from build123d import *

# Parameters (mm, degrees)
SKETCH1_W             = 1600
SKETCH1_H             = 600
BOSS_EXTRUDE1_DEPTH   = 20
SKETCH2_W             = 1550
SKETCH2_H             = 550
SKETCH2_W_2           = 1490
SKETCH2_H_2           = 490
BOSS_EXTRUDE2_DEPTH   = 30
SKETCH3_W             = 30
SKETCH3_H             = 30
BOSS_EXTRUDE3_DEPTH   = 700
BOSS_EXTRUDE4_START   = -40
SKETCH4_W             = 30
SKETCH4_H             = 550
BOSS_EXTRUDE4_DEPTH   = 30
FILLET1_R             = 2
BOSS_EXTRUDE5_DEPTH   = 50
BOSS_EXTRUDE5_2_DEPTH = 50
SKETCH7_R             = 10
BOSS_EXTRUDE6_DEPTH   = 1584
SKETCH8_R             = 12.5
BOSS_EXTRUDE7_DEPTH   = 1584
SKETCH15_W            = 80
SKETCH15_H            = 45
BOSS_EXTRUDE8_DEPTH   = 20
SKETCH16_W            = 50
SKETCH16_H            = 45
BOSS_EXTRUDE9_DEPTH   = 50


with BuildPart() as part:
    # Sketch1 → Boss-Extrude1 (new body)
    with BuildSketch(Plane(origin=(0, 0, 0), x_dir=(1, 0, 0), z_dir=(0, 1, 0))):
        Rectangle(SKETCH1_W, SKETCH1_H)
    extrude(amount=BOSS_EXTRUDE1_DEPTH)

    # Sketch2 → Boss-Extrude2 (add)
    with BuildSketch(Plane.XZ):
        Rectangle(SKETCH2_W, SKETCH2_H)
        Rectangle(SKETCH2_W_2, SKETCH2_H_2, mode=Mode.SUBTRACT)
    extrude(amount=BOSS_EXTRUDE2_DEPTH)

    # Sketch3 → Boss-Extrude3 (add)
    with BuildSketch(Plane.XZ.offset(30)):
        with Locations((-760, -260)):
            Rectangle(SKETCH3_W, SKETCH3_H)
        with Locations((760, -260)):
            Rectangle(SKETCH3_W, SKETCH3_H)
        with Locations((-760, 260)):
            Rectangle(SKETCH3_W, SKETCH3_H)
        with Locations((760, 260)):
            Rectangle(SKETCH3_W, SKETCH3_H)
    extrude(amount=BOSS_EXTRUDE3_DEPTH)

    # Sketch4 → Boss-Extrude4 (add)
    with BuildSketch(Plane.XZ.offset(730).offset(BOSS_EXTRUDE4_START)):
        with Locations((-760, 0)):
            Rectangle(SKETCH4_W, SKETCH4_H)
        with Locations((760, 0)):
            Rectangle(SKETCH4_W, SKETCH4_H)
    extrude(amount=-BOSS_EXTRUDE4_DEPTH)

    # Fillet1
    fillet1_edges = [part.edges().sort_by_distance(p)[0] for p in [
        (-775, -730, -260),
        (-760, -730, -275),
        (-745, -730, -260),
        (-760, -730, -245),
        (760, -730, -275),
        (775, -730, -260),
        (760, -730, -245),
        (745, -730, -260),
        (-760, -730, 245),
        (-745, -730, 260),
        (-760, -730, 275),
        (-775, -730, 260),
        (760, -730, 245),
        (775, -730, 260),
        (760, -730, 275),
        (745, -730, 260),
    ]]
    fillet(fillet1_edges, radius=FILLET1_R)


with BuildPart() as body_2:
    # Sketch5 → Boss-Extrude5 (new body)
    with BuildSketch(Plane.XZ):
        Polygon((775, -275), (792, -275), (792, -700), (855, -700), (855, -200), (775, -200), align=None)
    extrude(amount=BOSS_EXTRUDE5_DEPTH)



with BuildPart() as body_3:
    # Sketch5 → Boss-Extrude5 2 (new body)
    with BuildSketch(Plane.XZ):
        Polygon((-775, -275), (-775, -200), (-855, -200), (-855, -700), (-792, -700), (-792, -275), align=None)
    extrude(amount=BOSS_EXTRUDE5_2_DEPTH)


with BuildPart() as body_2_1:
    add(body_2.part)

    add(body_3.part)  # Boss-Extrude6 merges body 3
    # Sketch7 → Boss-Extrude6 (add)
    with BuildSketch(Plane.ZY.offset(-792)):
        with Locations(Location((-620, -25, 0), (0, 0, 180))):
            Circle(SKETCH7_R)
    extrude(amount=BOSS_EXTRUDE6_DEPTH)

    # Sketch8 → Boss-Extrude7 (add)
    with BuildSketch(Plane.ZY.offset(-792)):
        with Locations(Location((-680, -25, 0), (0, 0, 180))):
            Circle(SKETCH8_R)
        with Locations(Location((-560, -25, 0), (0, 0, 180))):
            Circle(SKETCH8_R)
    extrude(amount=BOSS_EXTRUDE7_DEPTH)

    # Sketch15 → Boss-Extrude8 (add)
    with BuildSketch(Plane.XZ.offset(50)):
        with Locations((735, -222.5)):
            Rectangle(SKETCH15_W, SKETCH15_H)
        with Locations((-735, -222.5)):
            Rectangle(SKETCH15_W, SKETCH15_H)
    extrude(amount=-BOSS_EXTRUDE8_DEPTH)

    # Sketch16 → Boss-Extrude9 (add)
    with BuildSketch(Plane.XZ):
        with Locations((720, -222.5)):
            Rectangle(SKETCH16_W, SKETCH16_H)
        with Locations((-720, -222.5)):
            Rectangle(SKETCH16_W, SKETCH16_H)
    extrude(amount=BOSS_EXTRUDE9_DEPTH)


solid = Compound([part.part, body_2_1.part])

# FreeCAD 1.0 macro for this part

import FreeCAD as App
import Part
import Sketcher
from FreeCAD import Vector


def edges_at(feature, points):
    """Names of the edges that pass closest to the given points."""
    edges = feature.Shape.Edges
    near = lambda p: min(range(len(edges)), key=lambda i: edges[i].distToShape(Part.Vertex(*p))[0])
    return sorted({f"Edge{near(p) + 1}" for p in points})


def add_polygon(sketch, points):
    """Adds a closed chain of lines whose ends are joined by coincident constraints."""
    first, n = sketch.GeometryCount, len(points)
    for a, b in zip(points, points[1:] + points[:1]):
        sketch.addGeometry(Part.LineSegment(App.Vector(*a, 0), App.Vector(*b, 0)), False)
    for i in range(n):
        sketch.addConstraint(Sketcher.Constraint("Coincident", first + i, 2, first + (i + 1) % n, 1))

doc = App.newDocument("Part")
body = doc.addObject("PartDesign::Body", "Body")

sketch1 = doc.addObject("Sketcher::SketchObject", "Sketch")
body.addObject(sketch1)
sketch1.AttachmentSupport = (doc.XZ_Plane, [""])
sketch1.MapMode = "FlatFace"
add_polygon(sketch1, [(-800, -300), (-800, 300), (800, 300), (800, -300)])
sketch1.addConstraint([
    Sketcher.Constraint("Vertical", 0),
    Sketcher.Constraint("Horizontal", 1),
    Sketcher.Constraint("Vertical", 2),
    Sketcher.Constraint("Horizontal", 3),
    Sketcher.Constraint("Symmetric", 0, 2, 2, 2, -1, 1),
    Sketcher.Constraint("DistanceX", 1, 1, 1, 2, 1600.0),
    Sketcher.Constraint("DistanceY", 0, 1, 0, 2, 600.0),
])
pad1 = doc.addObject("PartDesign::Pad", "Pad")
body.addObject(pad1)
pad1.Profile = sketch1
pad1.Length = 20
pad1.Reversed = True

sketch2 = doc.addObject("Sketcher::SketchObject", "Sketch001")
body.addObject(sketch2)
sketch2.AttachmentSupport = (doc.XZ_Plane, [""])
sketch2.MapMode = "FlatFace"
add_polygon(sketch2, [(-775, 275), (-775, -275), (775, -275), (775, 275)])
add_polygon(sketch2, [(745, -245), (-745, -245), (-745, 245), (745, 245)])
sketch2.addConstraint([
    Sketcher.Constraint("Vertical", 0),
    Sketcher.Constraint("Horizontal", 1),
    Sketcher.Constraint("Vertical", 2),
    Sketcher.Constraint("Horizontal", 3),
    Sketcher.Constraint("Horizontal", 4),
    Sketcher.Constraint("Vertical", 5),
    Sketcher.Constraint("Horizontal", 6),
    Sketcher.Constraint("Vertical", 7),
    Sketcher.Constraint("Symmetric", 0, 2, 2, 2, -1, 1),
    Sketcher.Constraint("Symmetric", 4, 2, 6, 2, -1, 1),
    Sketcher.Constraint("DistanceX", 1, 1, 1, 2, 1550.0),
    Sketcher.Constraint("DistanceX", 4, 2, 4, 1, 1490.0),
    Sketcher.Constraint("DistanceY", 0, 2, 0, 1, 550.0),
    Sketcher.Constraint("DistanceY", 5, 1, 5, 2, 490.0),
])
pad2 = doc.addObject("PartDesign::Pad", "Pad001")
body.addObject(pad2)
pad2.Profile = sketch2
pad2.Length = 30

sketch3 = doc.addObject("Sketcher::SketchObject", "Sketch002")
body.addObject(sketch3)
sketch3.AttachmentSupport = (doc.XZ_Plane, [""])
sketch3.MapMode = "FlatFace"
sketch3.AttachmentOffset = App.Placement(Vector(0, 0, 30), App.Rotation())
add_polygon(sketch3, [(-775, -245), (-775, -275), (-745, -275), (-745, -245)])
add_polygon(sketch3, [(745, -245), (745, -275), (775, -275), (775, -245)])
add_polygon(sketch3, [(-775, 275), (-775, 245), (-745, 245), (-745, 275)])
add_polygon(sketch3, [(745, 275), (745, 245), (775, 245), (775, 275)])
sketch3.addConstraint([
    Sketcher.Constraint("Vertical", 0),
    Sketcher.Constraint("Horizontal", 1),
    Sketcher.Constraint("Vertical", 2),
    Sketcher.Constraint("Horizontal", 3),
    Sketcher.Constraint("Vertical", 4),
    Sketcher.Constraint("Horizontal", 5),
    Sketcher.Constraint("Vertical", 6),
    Sketcher.Constraint("Horizontal", 7),
    Sketcher.Constraint("Vertical", 8),
    Sketcher.Constraint("Horizontal", 9),
    Sketcher.Constraint("Vertical", 10),
    Sketcher.Constraint("Horizontal", 11),
    Sketcher.Constraint("Vertical", 12),
    Sketcher.Constraint("Horizontal", 13),
    Sketcher.Constraint("Vertical", 14),
    Sketcher.Constraint("Horizontal", 15),
    Sketcher.Constraint("Symmetric", 6, 2, 8, 2, -1, 1),
    Sketcher.Constraint("Symmetric", 4, 2, 10, 2, -1, 1),
    Sketcher.Constraint("Symmetric", 2, 2, 12, 2, -1, 1),
    Sketcher.Constraint("Symmetric", 0, 2, 14, 2, -1, 1),
    Sketcher.Constraint("Symmetric", 1, 2, 4, 2, -2),
    Sketcher.Constraint("Symmetric", 3, 2, 6, 2, -2),
    Sketcher.Constraint("Equal", 15, 0),
    Sketcher.Constraint("DistanceX", 1, 1, 1, 2, 30.0),
    Sketcher.Constraint("DistanceX", 0, 2, -1, 1, 775.0),
    Sketcher.Constraint("DistanceY", 0, 2, -1, 1, 275.0),
])
pad3 = doc.addObject("PartDesign::Pad", "Pad002")
body.addObject(pad3)
pad3.Profile = sketch3
pad3.Length = 700

sketch4 = doc.addObject("Sketcher::SketchObject", "Sketch003")
body.addObject(sketch4)
sketch4.AttachmentSupport = (doc.XZ_Plane, [""])
sketch4.MapMode = "FlatFace"
sketch4.AttachmentOffset = App.Placement(Vector(0, 0, 690), App.Rotation())
add_polygon(sketch4, [(-775, 275), (-775, -275), (-745, -275), (-745, 275)])
add_polygon(sketch4, [(745, 275), (745, -275), (775, -275), (775, 275)])
sketch4.addConstraint([
    Sketcher.Constraint("Vertical", 0),
    Sketcher.Constraint("Horizontal", 1),
    Sketcher.Constraint("Vertical", 2),
    Sketcher.Constraint("Horizontal", 3),
    Sketcher.Constraint("Vertical", 4),
    Sketcher.Constraint("Horizontal", 5),
    Sketcher.Constraint("Vertical", 6),
    Sketcher.Constraint("Horizontal", 7),
    Sketcher.Constraint("Symmetric", 2, 2, 4, 2, -1, 1),
    Sketcher.Constraint("Symmetric", 0, 2, 6, 2, -1, 1),
    Sketcher.Constraint("Horizontal", 1, 2, 4, 2),
    Sketcher.Constraint("DistanceX", 1, 1, 1, 2, 30.0),
    Sketcher.Constraint("DistanceY", 0, 2, 0, 1, 550.0),
    Sketcher.Constraint("DistanceX", 0, 2, -1, 1, 775.0),
])
pad4 = doc.addObject("PartDesign::Pad", "Pad003")
body.addObject(pad4)
pad4.Profile = sketch4
pad4.Length = 30
pad4.Reversed = True
doc.recompute()

fillet = doc.addObject("PartDesign::Fillet", "Fillet")
body.addObject(fillet)
fillet.Base = (pad4, edges_at(pad4, [
    (-775, -730, -260),
    (-760, -730, -275),
    (-745, -730, -260),
    (-760, -730, -245),
    (760, -730, -275),
    (775, -730, -260),
    (760, -730, -245),
    (745, -730, -260),
    (-760, -730, 245),
    (-745, -730, 260),
    (-760, -730, 275),
    (-775, -730, 260),
    (760, -730, 245),
    (775, -730, 260),
    (760, -730, 275),
    (745, -730, 260),
]))
fillet.Radius = 2
body2 = doc.addObject("PartDesign::Body", "Body001")

sketch5 = doc.addObject("Sketcher::SketchObject", "Sketch004")
body2.addObject(sketch5)
sketch5.AttachmentSupport = (doc.getObject("XZ_Plane001"), [""])
sketch5.MapMode = "FlatFace"
add_polygon(sketch5, [(775, -275), (792, -275), (792, -700), (855, -700), (855, -200), (775, -200)])
sketch5.addConstraint([
    Sketcher.Constraint("Horizontal", 0),
    Sketcher.Constraint("Vertical", 1),
    Sketcher.Constraint("Horizontal", 2),
    Sketcher.Constraint("Vertical", 3),
    Sketcher.Constraint("Horizontal", 4),
    Sketcher.Constraint("Vertical", 5),
    Sketcher.Constraint("DistanceX", 0, 1, 0, 2, 17.0),
    Sketcher.Constraint("DistanceX", 2, 1, 2, 2, 63.0),
    Sketcher.Constraint("DistanceY", 1, 2, 1, 1, 425.0),
    Sketcher.Constraint("DistanceY", 3, 1, 3, 2, 500.0),
    Sketcher.Constraint("DistanceX", -1, 1, 0, 2, 792.0),
    Sketcher.Constraint("DistanceY", 0, 2, -1, 1, 275.0),
])
pad5 = doc.addObject("PartDesign::Pad", "Pad004")
body2.addObject(pad5)
pad5.Profile = sketch5
pad5.Length = 50
body3 = doc.addObject("PartDesign::Body", "Body002")

sketch6 = doc.addObject("Sketcher::SketchObject", "Sketch005")
body3.addObject(sketch6)
sketch6.AttachmentSupport = (doc.getObject("XZ_Plane002"), [""])
sketch6.MapMode = "FlatFace"
add_polygon(sketch6, [(-775, -275), (-775, -200), (-855, -200), (-855, -700), (-792, -700), (-792, -275)])
sketch6.addConstraint([
    Sketcher.Constraint("Vertical", 0),
    Sketcher.Constraint("Horizontal", 1),
    Sketcher.Constraint("Vertical", 2),
    Sketcher.Constraint("Horizontal", 3),
    Sketcher.Constraint("Vertical", 4),
    Sketcher.Constraint("Horizontal", 5),
    Sketcher.Constraint("DistanceX", 1, 2, 1, 1, 80.0),
    Sketcher.Constraint("DistanceX", 3, 1, 3, 2, 63.0),
    Sketcher.Constraint("DistanceY", 0, 1, 0, 2, 75.0),
    Sketcher.Constraint("DistanceY", 2, 2, 2, 1, 500.0),
    Sketcher.Constraint("DistanceX", 0, 2, -1, 1, 775.0),
    Sketcher.Constraint("DistanceY", 0, 2, -1, 1, 200.0),
])
pad6 = doc.addObject("PartDesign::Pad", "Pad005")
body3.addObject(pad6)
pad6.Profile = sketch6
pad6.Length = 50
body2.AllowCompound = True
doc.recompute()

boolean = doc.addObject("PartDesign::Boolean", "Boolean")
body2.addObject(boolean)
boolean.Type = "Fuse"
boolean.addObjects([body3])

sketch7 = doc.addObject("Sketcher::SketchObject", "Sketch006")
body2.addObject(sketch7)
sketch7.AttachmentSupport = (doc.getObject("YZ_Plane001"), [""])
sketch7.MapMode = "FlatFace"
sketch7.AttachmentOffset = App.Placement(Vector(0, 0, 792), App.Rotation())
sketch7.addGeometry(Part.Circle(Vector(-25, -620, 0), Vector(0, 0, 1), 10), False)
sketch7.addConstraint([
    Sketcher.Constraint("Diameter", 0, 20.0),
    Sketcher.Constraint("DistanceX", 0, 3, -1, 1, 25.0),
    Sketcher.Constraint("DistanceY", 0, 3, -1, 1, 620.0),
])
pad7 = doc.addObject("PartDesign::Pad", "Pad006")
body2.addObject(pad7)
pad7.Profile = sketch7
pad7.Length = 1584
pad7.Reversed = True

sketch8 = doc.addObject("Sketcher::SketchObject", "Sketch007")
body2.addObject(sketch8)
sketch8.AttachmentSupport = (doc.getObject("YZ_Plane001"), [""])
sketch8.MapMode = "FlatFace"
sketch8.AttachmentOffset = App.Placement(Vector(0, 0, 792), App.Rotation())
sketch8.addGeometry([
    Part.Circle(Vector(-25, -680, 0), Vector(0, 0, 1), 12),
    Part.Circle(Vector(-25, -560, 0), Vector(0, 0, 1), 12),
], False)
sketch8.addConstraint([
    Sketcher.Constraint("Equal", 0, 1),
    Sketcher.Constraint("Vertical", 0, 3, 1, 3),
    Sketcher.Constraint("Diameter", 0, 25.0),
    Sketcher.Constraint("DistanceX", 0, 3, -1, 1, 25.0),
    Sketcher.Constraint("DistanceY", 0, 3, -1, 1, 680.0),
    Sketcher.Constraint("DistanceY", 1, 3, -1, 1, 560.0),
])
pad8 = doc.addObject("PartDesign::Pad", "Pad007")
body2.addObject(pad8)
pad8.Profile = sketch8
pad8.Length = 1584
pad8.Reversed = True

sketch9 = doc.addObject("Sketcher::SketchObject", "Sketch008")
body2.addObject(sketch9)
sketch9.AttachmentSupport = (doc.getObject("XZ_Plane001"), [""])
sketch9.MapMode = "FlatFace"
sketch9.AttachmentOffset = App.Placement(Vector(0, 0, 50), App.Rotation())
add_polygon(sketch9, [(695, -200), (695, -245), (775, -245), (775, -200)])
add_polygon(sketch9, [(-775, -200), (-775, -245), (-695, -245), (-695, -200)])
sketch9.addConstraint([
    Sketcher.Constraint("Vertical", 0),
    Sketcher.Constraint("Horizontal", 1),
    Sketcher.Constraint("Vertical", 2),
    Sketcher.Constraint("Horizontal", 3),
    Sketcher.Constraint("Vertical", 4),
    Sketcher.Constraint("Horizontal", 5),
    Sketcher.Constraint("Vertical", 6),
    Sketcher.Constraint("Horizontal", 7),
    Sketcher.Constraint("Symmetric", 1, 2, 4, 2, -2),
    Sketcher.Constraint("Symmetric", 3, 2, 6, 2, -2),
    Sketcher.Constraint("DistanceX", 1, 1, 1, 2, 80.0),
    Sketcher.Constraint("DistanceY", 0, 2, 0, 1, 45.0),
    Sketcher.Constraint("DistanceX", -1, 1, 0, 2, 695.0),
    Sketcher.Constraint("DistanceY", 0, 2, -1, 1, 245.0),
])
pad9 = doc.addObject("PartDesign::Pad", "Pad008")
body2.addObject(pad9)
pad9.Profile = sketch9
pad9.Length = 20
pad9.Reversed = True

sketch10 = doc.addObject("Sketcher::SketchObject", "Sketch009")
body2.addObject(sketch10)
sketch10.AttachmentSupport = (doc.getObject("XZ_Plane001"), [""])
sketch10.MapMode = "FlatFace"
add_polygon(sketch10, [(695, -200), (695, -245), (745, -245), (745, -200)])
add_polygon(sketch10, [(-745, -200), (-745, -245), (-695, -245), (-695, -200)])
sketch10.addConstraint([
    Sketcher.Constraint("Vertical", 0),
    Sketcher.Constraint("Horizontal", 1),
    Sketcher.Constraint("Vertical", 2),
    Sketcher.Constraint("Horizontal", 3),
    Sketcher.Constraint("Vertical", 4),
    Sketcher.Constraint("Horizontal", 5),
    Sketcher.Constraint("Vertical", 6),
    Sketcher.Constraint("Horizontal", 7),
    Sketcher.Constraint("Symmetric", 1, 2, 4, 2, -2),
    Sketcher.Constraint("Symmetric", 3, 2, 6, 2, -2),
    Sketcher.Constraint("DistanceX", 1, 1, 1, 2, 50.0),
    Sketcher.Constraint("DistanceY", 0, 2, 0, 1, 45.0),
    Sketcher.Constraint("DistanceX", -1, 1, 0, 2, 695.0),
    Sketcher.Constraint("DistanceY", 0, 2, -1, 1, 245.0),
])
pad10 = doc.addObject("PartDesign::Pad", "Pad009")
body2.addObject(pad10)
pad10.Profile = sketch10
pad10.Length = 50

doc.recompute()
